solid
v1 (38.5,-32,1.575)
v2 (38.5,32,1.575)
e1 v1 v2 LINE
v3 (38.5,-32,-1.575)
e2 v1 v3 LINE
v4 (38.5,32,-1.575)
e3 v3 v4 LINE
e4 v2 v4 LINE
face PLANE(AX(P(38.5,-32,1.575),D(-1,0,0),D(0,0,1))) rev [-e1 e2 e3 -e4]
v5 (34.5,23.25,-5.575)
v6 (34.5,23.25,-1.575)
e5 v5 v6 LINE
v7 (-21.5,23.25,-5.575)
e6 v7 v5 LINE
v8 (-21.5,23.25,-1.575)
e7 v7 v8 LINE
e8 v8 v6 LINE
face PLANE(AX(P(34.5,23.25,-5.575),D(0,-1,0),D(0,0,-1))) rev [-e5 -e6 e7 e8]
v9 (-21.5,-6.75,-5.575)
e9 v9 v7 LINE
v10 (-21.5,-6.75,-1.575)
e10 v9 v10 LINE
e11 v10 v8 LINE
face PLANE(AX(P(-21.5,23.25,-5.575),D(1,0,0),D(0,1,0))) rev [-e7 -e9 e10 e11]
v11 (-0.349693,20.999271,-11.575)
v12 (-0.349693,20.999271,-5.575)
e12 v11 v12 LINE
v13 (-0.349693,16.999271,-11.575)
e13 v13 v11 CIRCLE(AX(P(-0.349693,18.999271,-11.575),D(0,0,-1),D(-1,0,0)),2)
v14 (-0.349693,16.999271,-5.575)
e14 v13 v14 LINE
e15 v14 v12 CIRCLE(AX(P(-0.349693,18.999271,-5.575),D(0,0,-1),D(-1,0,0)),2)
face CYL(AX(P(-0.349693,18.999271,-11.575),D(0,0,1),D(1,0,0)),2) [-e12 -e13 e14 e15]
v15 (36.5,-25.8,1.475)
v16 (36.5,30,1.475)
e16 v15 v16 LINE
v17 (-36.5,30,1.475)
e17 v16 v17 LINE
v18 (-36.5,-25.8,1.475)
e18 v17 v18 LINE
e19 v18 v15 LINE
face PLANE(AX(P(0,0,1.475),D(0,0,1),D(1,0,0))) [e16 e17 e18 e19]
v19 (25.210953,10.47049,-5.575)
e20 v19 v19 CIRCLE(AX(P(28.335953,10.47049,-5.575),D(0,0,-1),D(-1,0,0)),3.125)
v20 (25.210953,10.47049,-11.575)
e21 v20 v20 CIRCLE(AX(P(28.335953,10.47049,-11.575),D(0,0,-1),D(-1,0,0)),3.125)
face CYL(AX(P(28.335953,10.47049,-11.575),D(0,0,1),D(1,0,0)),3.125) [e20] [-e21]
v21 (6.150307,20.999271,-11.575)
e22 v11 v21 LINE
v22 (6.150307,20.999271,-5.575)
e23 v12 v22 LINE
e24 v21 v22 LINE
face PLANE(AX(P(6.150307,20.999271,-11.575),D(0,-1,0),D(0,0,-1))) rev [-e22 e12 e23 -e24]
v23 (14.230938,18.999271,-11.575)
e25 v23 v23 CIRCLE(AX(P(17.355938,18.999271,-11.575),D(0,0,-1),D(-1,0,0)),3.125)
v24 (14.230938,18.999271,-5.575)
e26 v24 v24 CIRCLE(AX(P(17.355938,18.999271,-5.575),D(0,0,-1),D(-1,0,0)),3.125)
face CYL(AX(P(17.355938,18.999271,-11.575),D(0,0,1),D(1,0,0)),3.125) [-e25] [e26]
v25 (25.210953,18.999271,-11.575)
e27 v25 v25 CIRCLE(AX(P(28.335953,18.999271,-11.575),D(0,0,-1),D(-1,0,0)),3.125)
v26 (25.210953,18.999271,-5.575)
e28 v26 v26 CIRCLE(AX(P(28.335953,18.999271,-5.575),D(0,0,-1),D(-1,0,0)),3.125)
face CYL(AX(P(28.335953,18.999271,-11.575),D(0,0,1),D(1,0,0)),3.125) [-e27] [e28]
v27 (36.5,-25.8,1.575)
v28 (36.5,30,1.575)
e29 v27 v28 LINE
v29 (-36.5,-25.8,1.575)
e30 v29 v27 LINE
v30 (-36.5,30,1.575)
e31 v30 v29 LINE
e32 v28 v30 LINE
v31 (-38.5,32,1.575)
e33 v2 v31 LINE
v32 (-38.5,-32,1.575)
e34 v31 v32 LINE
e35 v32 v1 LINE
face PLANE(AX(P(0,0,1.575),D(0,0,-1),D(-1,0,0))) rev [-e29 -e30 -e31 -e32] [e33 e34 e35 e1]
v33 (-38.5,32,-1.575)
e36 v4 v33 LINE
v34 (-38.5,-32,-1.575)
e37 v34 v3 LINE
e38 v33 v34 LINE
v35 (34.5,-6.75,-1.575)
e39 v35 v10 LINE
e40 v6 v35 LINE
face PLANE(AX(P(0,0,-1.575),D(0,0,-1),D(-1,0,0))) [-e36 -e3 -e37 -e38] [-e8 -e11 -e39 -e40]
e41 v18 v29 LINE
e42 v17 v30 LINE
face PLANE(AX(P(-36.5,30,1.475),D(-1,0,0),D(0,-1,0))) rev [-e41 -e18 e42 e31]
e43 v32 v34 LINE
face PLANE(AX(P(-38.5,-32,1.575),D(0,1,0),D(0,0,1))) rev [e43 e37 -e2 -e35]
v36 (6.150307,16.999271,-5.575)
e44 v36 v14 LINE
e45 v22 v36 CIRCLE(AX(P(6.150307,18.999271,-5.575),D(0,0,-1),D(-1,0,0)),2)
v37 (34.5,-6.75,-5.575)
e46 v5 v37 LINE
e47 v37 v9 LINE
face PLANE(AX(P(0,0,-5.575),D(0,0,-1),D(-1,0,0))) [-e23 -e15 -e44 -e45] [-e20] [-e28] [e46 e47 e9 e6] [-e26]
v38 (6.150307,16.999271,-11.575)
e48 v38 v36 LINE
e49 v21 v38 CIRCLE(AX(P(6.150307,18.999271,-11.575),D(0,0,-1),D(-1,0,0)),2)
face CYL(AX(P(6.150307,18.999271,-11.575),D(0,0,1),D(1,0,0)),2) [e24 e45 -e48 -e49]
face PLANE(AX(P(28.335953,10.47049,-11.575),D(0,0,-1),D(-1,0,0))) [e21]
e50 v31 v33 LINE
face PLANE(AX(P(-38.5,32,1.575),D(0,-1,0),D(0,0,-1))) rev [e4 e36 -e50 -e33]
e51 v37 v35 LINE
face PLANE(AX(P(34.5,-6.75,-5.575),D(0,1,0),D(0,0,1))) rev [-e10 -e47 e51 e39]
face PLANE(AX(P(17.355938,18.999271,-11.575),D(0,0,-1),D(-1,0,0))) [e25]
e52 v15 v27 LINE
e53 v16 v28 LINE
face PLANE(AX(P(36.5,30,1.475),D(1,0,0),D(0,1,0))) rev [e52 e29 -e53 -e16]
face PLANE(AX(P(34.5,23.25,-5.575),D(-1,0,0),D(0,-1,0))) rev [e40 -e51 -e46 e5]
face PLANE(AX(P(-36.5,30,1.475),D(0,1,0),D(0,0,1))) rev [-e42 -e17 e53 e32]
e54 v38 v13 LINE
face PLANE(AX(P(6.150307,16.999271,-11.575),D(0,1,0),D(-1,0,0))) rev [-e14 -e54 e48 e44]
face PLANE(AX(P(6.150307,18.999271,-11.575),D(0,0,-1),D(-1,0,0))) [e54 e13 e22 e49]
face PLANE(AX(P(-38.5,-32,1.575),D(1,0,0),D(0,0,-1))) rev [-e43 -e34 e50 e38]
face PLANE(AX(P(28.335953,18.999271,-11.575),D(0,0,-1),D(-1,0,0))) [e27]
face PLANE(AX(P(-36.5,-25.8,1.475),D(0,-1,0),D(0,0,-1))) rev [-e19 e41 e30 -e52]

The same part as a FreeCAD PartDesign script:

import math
import FreeCAD as App
import Part
import Sketcher

doc = App.newDocument("Part")
params = doc.addObject("Spreadsheet::Sheet", "Params")
for row, (alias, value) in enumerate([
    ("sketch1_width", "77 mm"),
    ("sketch1_height", "64 mm"),
    ("pad1_length", "3.15 mm"),
    ("sketch2_width", "56 mm"),
    ("sketch2_height", "30 mm"),
    ("pad2_length", "4 mm"),
    ("sketch3_radius", "2 mm"),
    ("sketch3_diameter", "6.25 mm"),
    ("sketch3_width", "6.5 mm"),
    ("pad3_length", "6 mm"),
    ("sketch4_width", "73 mm"),
    ("sketch4_height", "55.8 mm"),
    ("pocket1_length", "0.1 mm"),
], start=1):
    params.set(f"A{row}", alias)
    params.set(f"B{row}", "=" + value)
    params.setAlias(f"B{row}", alias)

body = doc.addObject("PartDesign::Body", "Body")

# Sketch on XY plane
sketch1 = body.newObject("Sketcher::SketchObject", "Sketch")
sketch1.AttachmentSupport = (doc.getObject("XY_Plane"), [""])
sketch1.MapMode = "FlatFace"
sketch1.addGeometry(Part.LineSegment(App.Vector(-38, 32, 0), App.Vector(-38, -32, 0)), False)
sketch1.addGeometry(Part.LineSegment(App.Vector(-38, -32, 0), App.Vector(38, -32, 0)), False)
sketch1.addGeometry(Part.LineSegment(App.Vector(38, -32, 0), App.Vector(38, 32, 0)), False)
sketch1.addGeometry(Part.LineSegment(App.Vector(38, 32, 0), App.Vector(-38, 32, 0)), False)
sketch1.addConstraint(Sketcher.Constraint("Coincident", 0, 2, 1, 1))
sketch1.addConstraint(Sketcher.Constraint("Coincident", 1, 2, 2, 1))
sketch1.addConstraint(Sketcher.Constraint("Coincident", 2, 2, 3, 1))
sketch1.addConstraint(Sketcher.Constraint("Coincident", 3, 2, 0, 1))
sketch1.addConstraint(Sketcher.Constraint("Vertical", 0))
sketch1.addConstraint(Sketcher.Constraint("Horizontal", 1))
sketch1.addConstraint(Sketcher.Constraint("Vertical", 2))
sketch1.addConstraint(Sketcher.Constraint("Horizontal", 3))
sketch1.addConstraint(Sketcher.Constraint("Symmetric", 0, 2, 2, 2, -1, 1))
sketch1.addConstraint(Sketcher.Constraint("DistanceX", 1, 1, 1, 2, 77.0))
sketch1.addConstraint(Sketcher.Constraint("DistanceY", 0, 2, 0, 1, 64.0))
sketch1.setExpression("Constraints[9]", "Params.sketch1_width")
sketch1.setExpression("Constraints[10]", "Params.sketch1_height")
pad1 = body.newObject("PartDesign::Pad", "Pad")
pad1.Profile = sketch1
pad1.setExpression("Length", "Params.pad1_length")
pad1.Midplane = True

# Sketch on XY plane
sketch2 = body.newObject("Sketcher::SketchObject", "Sketch001")
sketch2.AttachmentSupport = (doc.getObject("XY_Plane"), [""])
sketch2.MapMode = "FlatFace"
sketch2.AttachmentOffset = App.Placement(App.Vector(0, 0, -1.575), App.Rotation())
sketch2.addGeometry(Part.LineSegment(App.Vector(34, 23, 0), App.Vector(34, -7, 0)), False)
sketch2.addGeometry(Part.LineSegment(App.Vector(34, -7, 0), App.Vector(-22, -7, 0)), False)
sketch2.addGeometry(Part.LineSegment(App.Vector(-22, -7, 0), App.Vector(-22, 23, 0)), False)
sketch2.addGeometry(Part.LineSegment(App.Vector(-22, 23, 0), App.Vector(34, 23, 0)), False)
sketch2.addConstraint(Sketcher.Constraint("Coincident", 0, 2, 1, 1))
sketch2.addConstraint(Sketcher.Constraint("Coincident", 1, 2, 2, 1))
sketch2.addConstraint(Sketcher.Constraint("Coincident", 2, 2, 3, 1))
sketch2.addConstraint(Sketcher.Constraint("Coincident", 3, 2, 0, 1))
sketch2.addConstraint(Sketcher.Constraint("Vertical", 0))
sketch2.addConstraint(Sketcher.Constraint("Horizontal", 1))
sketch2.addConstraint(Sketcher.Constraint("Vertical", 2))
sketch2.addConstraint(Sketcher.Constraint("Horizontal", 3))
sketch2.addConstraint(Sketcher.Constraint("DistanceX", 1, 2, 1, 1, 56.0))
sketch2.addConstraint(Sketcher.Constraint("DistanceY", 0, 2, 0, 1, 30.0))
sketch2.addConstraint(Sketcher.Constraint("DistanceX", -1, 1, 0, 2, 34.5))
sketch2.addConstraint(Sketcher.Constraint("DistanceY", 0, 2, -1, 1, 6.75))
sketch2.setExpression("Constraints[8]", "Params.sketch2_width")
sketch2.setExpression("Constraints[9]", "Params.sketch2_height")
pad2 = body.newObject("PartDesign::Pad", "Pad001")
pad2.Profile = sketch2
pad2.setExpression("Length", "Params.pad2_length")
pad2.Reversed = True

# Sketch on XY plane
sketch3 = body.newObject("Sketcher::SketchObject", "Sketch002")
sketch3.AttachmentSupport = (doc.getObject("XY_Plane"), [""])
sketch3.MapMode = "FlatFace"
sketch3.AttachmentOffset = App.Placement(App.Vector(0, 0, -5.575), App.Rotation())
sketch3.addGeometry(Part.Circle(App.Vector(28.3, 19, 0), App.Vector(0, 0, 1), 3.1), False)
sketch3.addGeometry(Part.Circle(App.Vector(17.4, 19, 0), App.Vector(0, 0, 1), 3.1), False)
sketch3.addGeometry(Part.Circle(App.Vector(28.3, 10.5, 0), App.Vector(0, 0, 1), 3.1), False)
sketch3.addGeometry(Part.LineSegment(App.Vector(-0.3, 21, 0), App.Vector(6.2, 21, 0)), False)
sketch3.addGeometry(Part.ArcOfCircle(Part.Circle(App.Vector(6.2, 19, 0), App.Vector(0, 0, 1), 2), math.radians(-90), math.radians(90)), False)
sketch3.addGeometry(Part.LineSegment(App.Vector(6.2, 17, 0), App.Vector(-0.3, 17, 0)), False)
sketch3.addGeometry(Part.ArcOfCircle(Part.Circle(App.Vector(-0.3, 19, 0), App.Vector(0, 0, 1), 2), math.radians(90), math.radians(270)), False)
sketch3.addConstraint(Sketcher.Constraint("Tangent", 3, 2, 4, 2))
sketch3.addConstraint(Sketcher.Constraint("Tangent", 4, 1, 5, 1))
sketch3.addConstraint(Sketcher.Constraint("Tangent", 5, 2, 6, 2))
sketch3.addConstraint(Sketcher.Constraint("Tangent", 6, 1, 3, 1))
sketch3.addConstraint(Sketcher.Constraint("Horizontal", 3))
sketch3.addConstraint(Sketcher.Constraint("Horizontal", 5))
sketch3.addConstraint(Sketcher.Constraint("Equal", 0, 1))
sketch3.addConstraint(Sketcher.Constraint("Equal", 1, 2))
sketch3.addConstraint(Sketcher.Constraint("Horizontal", 0, 3, 1, 3))
sketch3.addConstraint(Sketcher.Constraint("Horizontal", 1, 3, 4, 3))
sketch3.addConstraint(Sketcher.Constraint("Vertical", 0, 3, 2, 3))
sketch3.addConstraint(Sketcher.Constraint("Radius", 4, 2.0))
sketch3.addConstraint(Sketcher.Constraint("Diameter", 0, 6.25))
sketch3.addConstraint(Sketcher.Constraint("DistanceX", 3, 1, 3, 2, 6.5))
sketch3.addConstraint(Sketcher.Constraint("DistanceY", -1, 1, 0, 3, 18.999271))
sketch3.addConstraint(Sketcher.Constraint("DistanceY", -1, 1, 2, 3, 10.47049))
sketch3.addConstraint(Sketcher.Constraint("DistanceX", 4, 3, 1, 3, 11.205631))
sketch3.addConstraint(Sketcher.Constraint("DistanceX", -1, 1, 0, 3, 28.335953))
sketch3.addConstraint(Sketcher.Constraint("DistanceX", -1, 1, 1, 3, 17.355938))
sketch3.setExpression("Constraints[11]", "Params.sketch3_radius")
sketch3.setExpression("Constraints[12]", "Params.sketch3_diameter")
sketch3.setExpression("Constraints[13]", "Params.sketch3_width")
pad3 = body.newObject("PartDesign::Pad", "Pad002")
pad3.Profile = sketch3
pad3.setExpression("Length", "Params.pad3_length")
pad3.Reversed = True

# Sketch on XY plane
sketch4 = body.newObject("Sketcher::SketchObject", "Sketch003")
sketch4.AttachmentSupport = (doc.getObject("XY_Plane"), [""])
sketch4.MapMode = "FlatFace"
sketch4.AttachmentOffset = App.Placement(App.Vector(0, 0, 1.575), App.Rotation())
sketch4.addGeometry(Part.LineSegment(App.Vector(-36, 30, 0), App.Vector(-36, -26, 0)), False)
sketch4.addGeometry(Part.LineSegment(App.Vector(-36, -26, 0), App.Vector(36, -26, 0)), False)
sketch4.addGeometry(Part.LineSegment(App.Vector(36, -26, 0), App.Vector(36, 30, 0)), False)
sketch4.addGeometry(Part.LineSegment(App.Vector(36, 30, 0), App.Vector(-36, 30, 0)), False)
sketch4.addConstraint(Sketcher.Constraint("Coincident", 0, 2, 1, 1))
sketch4.addConstraint(Sketcher.Constraint("Coincident", 1, 2, 2, 1))
sketch4.addConstraint(Sketcher.Constraint("Coincident", 2, 2, 3, 1))
sketch4.addConstraint(Sketcher.Constraint("Coincident", 3, 2, 0, 1))
sketch4.addConstraint(Sketcher.Constraint("Vertical", 0))
sketch4.addConstraint(Sketcher.Constraint("Horizontal", 1))
sketch4.addConstraint(Sketcher.Constraint("Vertical", 2))
sketch4.addConstraint(Sketcher.Constraint("Horizontal", 3))
sketch4.addConstraint(Sketcher.Constraint("DistanceX", 1, 1, 1, 2, 73.0))
sketch4.addConstraint(Sketcher.Constraint("DistanceY", 0, 2, 0, 1, 55.8))
sketch4.addConstraint(Sketcher.Constraint("DistanceY", -1, 1, 2, 2, 30.0))
sketch4.addConstraint(Sketcher.Constraint("DistanceX", 0, 2, -1, 1, 36.5))
sketch4.setExpression("Constraints[8]", "Params.sketch4_width")
sketch4.setExpression("Constraints[9]", "Params.sketch4_height")
pocket1 = body.newObject("PartDesign::Pocket", "Pocket")
pocket1.Profile = sketch4
pocket1.setExpression("Length", "Params.pocket1_length")

doc.recompute()
